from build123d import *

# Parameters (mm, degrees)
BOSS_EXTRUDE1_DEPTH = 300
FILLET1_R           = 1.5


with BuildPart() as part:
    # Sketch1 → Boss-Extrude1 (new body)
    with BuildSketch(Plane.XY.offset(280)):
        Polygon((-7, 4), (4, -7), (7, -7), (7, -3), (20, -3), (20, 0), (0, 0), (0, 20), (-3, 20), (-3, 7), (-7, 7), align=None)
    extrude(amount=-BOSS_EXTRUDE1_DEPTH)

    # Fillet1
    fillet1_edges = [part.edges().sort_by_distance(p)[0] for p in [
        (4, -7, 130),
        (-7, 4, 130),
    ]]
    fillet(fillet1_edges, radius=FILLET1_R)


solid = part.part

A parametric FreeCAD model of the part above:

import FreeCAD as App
import Part
import Sketcher
from FreeCAD import Vector
Q = App.Units.Quantity


def edges_at(feature, points):
    """Names of the edges that pass closest to the given points."""
    edges = feature.Shape.Edges
    near = lambda p: min(range(len(edges)), key=lambda i: edges[i].distToShape(Part.Vertex(*p))[0])
    return sorted({f"Edge{near(p) + 1}" for p in points})

doc = App.newDocument("Part")
params = doc.addObject("Spreadsheet::Sheet", "Params")
for row, (alias, value) in enumerate([
    ("sketch1_width", "3 mm"),
    ("sketch1_width2", "13 mm"),
    ("sketch1_width3", "20 mm"),
    ("pad1_length", "300 mm"),
    ("fillet_radius", "1.5 mm"),
], start=1):
    params.set(f"A{row}", alias)
    params.set(f"B{row}", "=" + value)
    params.setAlias(f"B{row}", alias)

body = doc.addObject("PartDesign::Body", "Body")

sketch1 = body.newObject("Sketcher::SketchObject", "Sketch")
sketch1.AttachmentSupport = (doc.getObject("XY_Plane"), [""])
sketch1.MapMode = "FlatFace"
sketch1.AttachmentOffset = App.Placement(Vector(0, 0, 280), App.Rotation())
sketch1.addGeometry(Part.LineSegment(Vector(-7, 4, 0), Vector(4, -7, 0)), False)
sketch1.addGeometry(Part.LineSegment(Vector(4, -7, 0), Vector(7, -7, 0)), False)
sketch1.addGeometry(Part.LineSegment(Vector(7, -7, 0), Vector(7, -3, 0)), False)
sketch1.addGeometry(Part.LineSegment(Vector(7, -3, 0), Vector(20, -3, 0)), False)
sketch1.addGeometry(Part.LineSegment(Vector(20, -3, 0), Vector(20, 0, 0)), False)
sketch1.addGeometry(Part.LineSegment(Vector(20, 0, 0), Vector(0, 0, 0)), False)
sketch1.addGeometry(Part.LineSegment(Vector(0, 0, 0), Vector(0, 20, 0)), False)
sketch1.addGeometry(Part.LineSegment(Vector(0, 20, 0), Vector(-3, 20, 0)), False)
sketch1.addGeometry(Part.LineSegment(Vector(-3, 20, 0), Vector(-3, 7, 0)), False)
sketch1.addGeometry(Part.LineSegment(Vector(-3, 7, 0), Vector(-7, 7, 0)), False)
sketch1.addGeometry(Part.LineSegment(Vector(-7, 7, 0), Vector(-7, 4, 0)), False)
sketch1.addConstraint(Sketcher.Constraint("Coincident", 0, 2, 1, 1))
sketch1.addConstraint(Sketcher.Constraint("Coincident", 1, 2, 2, 1))
sketch1.addConstraint(Sketcher.Constraint("Coincident", 2, 2, 3, 1))
sketch1.addConstraint(Sketcher.Constraint("Coincident", 3, 2, 4, 1))
sketch1.addConstraint(Sketcher.Constraint("Coincident", 4, 2, 5, 1))
sketch1.addConstraint(Sketcher.Constraint("Coincident", 5, 2, 6, 1))
sketch1.addConstraint(Sketcher.Constraint("Coincident", 6, 2, 7, 1))
sketch1.addConstraint(Sketcher.Constraint("Coincident", 7, 2, 8, 1))
sketch1.addConstraint(Sketcher.Constraint("Coincident", 8, 2, 9, 1))
sketch1.addConstraint(Sketcher.Constraint("Coincident", 9, 2, 10, 1))
sketch1.addConstraint(Sketcher.Constraint("Coincident", 10, 2, 0, 1))
sketch1.addConstraint(Sketcher.Constraint("Horizontal", 1))
sketch1.addConstraint(Sketcher.Constraint("Vertical", 2))
sketch1.addConstraint(Sketcher.Constraint("Horizontal", 3))
sketch1.addConstraint(Sketcher.Constraint("Vertical", 4))
sketch1.addConstraint(Sketcher.Constraint("Horizontal", 5))
sketch1.addConstraint(Sketcher.Constraint("Vertical", 6))
sketch1.addConstraint(Sketcher.Constraint("Horizontal", 7))
sketch1.addConstraint(Sketcher.Constraint("Vertical", 8))
sketch1.addConstraint(Sketcher.Constraint("Horizontal", 9))
sketch1.addConstraint(Sketcher.Constraint("Vertical", 10))
sketch1.addConstraint(Sketcher.Constraint("Coincident", 5, 2, -1, 1))
sketch1.addConstraint(Sketcher.Constraint("Symmetric", 1, 2, 9, 2, -1, 1))
sketch1.addConstraint(Sketcher.Constraint("Equal", 1, 7))
sketch1.addConstraint(Sketcher.Constraint("Equal", 9, 2))
sketch1.addConstraint(Sketcher.Constraint("Equal", 7, 4))
sketch1.addConstraint(Sketcher.Constraint("Equal", 5, 6))
sketch1.addConstraint(Sketcher.Constraint("Equal", 4, 10))
sketch1.addConstraint(Sketcher.Constraint("DistanceX", 1, 1, 1, 2, Q("3 mm")))
sketch1.addConstraint(Sketcher.Constraint("DistanceX", 3, 1, 3, 2, Q("13 mm")))
sketch1.addConstraint(Sketcher.Constraint("DistanceX", 5, 2, 5, 1, Q("20 mm")))
sketch1.setExpression("Constraints[28]", "Params.sketch1_width")
sketch1.setExpression("Constraints[29]", "Params.sketch1_width2")
sketch1.setExpression("Constraints[30]", "Params.sketch1_width3")
pad1 = body.newObject("PartDesign::Pad", "Pad")
pad1.Profile = sketch1
pad1.setExpression("Length", "Params.pad1_length")
pad1.Reversed = True
doc.recompute()

fillet = body.newObject("PartDesign::Fillet", "Fillet")
fillet.Base = (pad1, edges_at(pad1, [(4, -7, 130), (-7, 4, 130)]))
fillet.setExpression("Radius", "Params.fillet_radius")

doc.recompute()
